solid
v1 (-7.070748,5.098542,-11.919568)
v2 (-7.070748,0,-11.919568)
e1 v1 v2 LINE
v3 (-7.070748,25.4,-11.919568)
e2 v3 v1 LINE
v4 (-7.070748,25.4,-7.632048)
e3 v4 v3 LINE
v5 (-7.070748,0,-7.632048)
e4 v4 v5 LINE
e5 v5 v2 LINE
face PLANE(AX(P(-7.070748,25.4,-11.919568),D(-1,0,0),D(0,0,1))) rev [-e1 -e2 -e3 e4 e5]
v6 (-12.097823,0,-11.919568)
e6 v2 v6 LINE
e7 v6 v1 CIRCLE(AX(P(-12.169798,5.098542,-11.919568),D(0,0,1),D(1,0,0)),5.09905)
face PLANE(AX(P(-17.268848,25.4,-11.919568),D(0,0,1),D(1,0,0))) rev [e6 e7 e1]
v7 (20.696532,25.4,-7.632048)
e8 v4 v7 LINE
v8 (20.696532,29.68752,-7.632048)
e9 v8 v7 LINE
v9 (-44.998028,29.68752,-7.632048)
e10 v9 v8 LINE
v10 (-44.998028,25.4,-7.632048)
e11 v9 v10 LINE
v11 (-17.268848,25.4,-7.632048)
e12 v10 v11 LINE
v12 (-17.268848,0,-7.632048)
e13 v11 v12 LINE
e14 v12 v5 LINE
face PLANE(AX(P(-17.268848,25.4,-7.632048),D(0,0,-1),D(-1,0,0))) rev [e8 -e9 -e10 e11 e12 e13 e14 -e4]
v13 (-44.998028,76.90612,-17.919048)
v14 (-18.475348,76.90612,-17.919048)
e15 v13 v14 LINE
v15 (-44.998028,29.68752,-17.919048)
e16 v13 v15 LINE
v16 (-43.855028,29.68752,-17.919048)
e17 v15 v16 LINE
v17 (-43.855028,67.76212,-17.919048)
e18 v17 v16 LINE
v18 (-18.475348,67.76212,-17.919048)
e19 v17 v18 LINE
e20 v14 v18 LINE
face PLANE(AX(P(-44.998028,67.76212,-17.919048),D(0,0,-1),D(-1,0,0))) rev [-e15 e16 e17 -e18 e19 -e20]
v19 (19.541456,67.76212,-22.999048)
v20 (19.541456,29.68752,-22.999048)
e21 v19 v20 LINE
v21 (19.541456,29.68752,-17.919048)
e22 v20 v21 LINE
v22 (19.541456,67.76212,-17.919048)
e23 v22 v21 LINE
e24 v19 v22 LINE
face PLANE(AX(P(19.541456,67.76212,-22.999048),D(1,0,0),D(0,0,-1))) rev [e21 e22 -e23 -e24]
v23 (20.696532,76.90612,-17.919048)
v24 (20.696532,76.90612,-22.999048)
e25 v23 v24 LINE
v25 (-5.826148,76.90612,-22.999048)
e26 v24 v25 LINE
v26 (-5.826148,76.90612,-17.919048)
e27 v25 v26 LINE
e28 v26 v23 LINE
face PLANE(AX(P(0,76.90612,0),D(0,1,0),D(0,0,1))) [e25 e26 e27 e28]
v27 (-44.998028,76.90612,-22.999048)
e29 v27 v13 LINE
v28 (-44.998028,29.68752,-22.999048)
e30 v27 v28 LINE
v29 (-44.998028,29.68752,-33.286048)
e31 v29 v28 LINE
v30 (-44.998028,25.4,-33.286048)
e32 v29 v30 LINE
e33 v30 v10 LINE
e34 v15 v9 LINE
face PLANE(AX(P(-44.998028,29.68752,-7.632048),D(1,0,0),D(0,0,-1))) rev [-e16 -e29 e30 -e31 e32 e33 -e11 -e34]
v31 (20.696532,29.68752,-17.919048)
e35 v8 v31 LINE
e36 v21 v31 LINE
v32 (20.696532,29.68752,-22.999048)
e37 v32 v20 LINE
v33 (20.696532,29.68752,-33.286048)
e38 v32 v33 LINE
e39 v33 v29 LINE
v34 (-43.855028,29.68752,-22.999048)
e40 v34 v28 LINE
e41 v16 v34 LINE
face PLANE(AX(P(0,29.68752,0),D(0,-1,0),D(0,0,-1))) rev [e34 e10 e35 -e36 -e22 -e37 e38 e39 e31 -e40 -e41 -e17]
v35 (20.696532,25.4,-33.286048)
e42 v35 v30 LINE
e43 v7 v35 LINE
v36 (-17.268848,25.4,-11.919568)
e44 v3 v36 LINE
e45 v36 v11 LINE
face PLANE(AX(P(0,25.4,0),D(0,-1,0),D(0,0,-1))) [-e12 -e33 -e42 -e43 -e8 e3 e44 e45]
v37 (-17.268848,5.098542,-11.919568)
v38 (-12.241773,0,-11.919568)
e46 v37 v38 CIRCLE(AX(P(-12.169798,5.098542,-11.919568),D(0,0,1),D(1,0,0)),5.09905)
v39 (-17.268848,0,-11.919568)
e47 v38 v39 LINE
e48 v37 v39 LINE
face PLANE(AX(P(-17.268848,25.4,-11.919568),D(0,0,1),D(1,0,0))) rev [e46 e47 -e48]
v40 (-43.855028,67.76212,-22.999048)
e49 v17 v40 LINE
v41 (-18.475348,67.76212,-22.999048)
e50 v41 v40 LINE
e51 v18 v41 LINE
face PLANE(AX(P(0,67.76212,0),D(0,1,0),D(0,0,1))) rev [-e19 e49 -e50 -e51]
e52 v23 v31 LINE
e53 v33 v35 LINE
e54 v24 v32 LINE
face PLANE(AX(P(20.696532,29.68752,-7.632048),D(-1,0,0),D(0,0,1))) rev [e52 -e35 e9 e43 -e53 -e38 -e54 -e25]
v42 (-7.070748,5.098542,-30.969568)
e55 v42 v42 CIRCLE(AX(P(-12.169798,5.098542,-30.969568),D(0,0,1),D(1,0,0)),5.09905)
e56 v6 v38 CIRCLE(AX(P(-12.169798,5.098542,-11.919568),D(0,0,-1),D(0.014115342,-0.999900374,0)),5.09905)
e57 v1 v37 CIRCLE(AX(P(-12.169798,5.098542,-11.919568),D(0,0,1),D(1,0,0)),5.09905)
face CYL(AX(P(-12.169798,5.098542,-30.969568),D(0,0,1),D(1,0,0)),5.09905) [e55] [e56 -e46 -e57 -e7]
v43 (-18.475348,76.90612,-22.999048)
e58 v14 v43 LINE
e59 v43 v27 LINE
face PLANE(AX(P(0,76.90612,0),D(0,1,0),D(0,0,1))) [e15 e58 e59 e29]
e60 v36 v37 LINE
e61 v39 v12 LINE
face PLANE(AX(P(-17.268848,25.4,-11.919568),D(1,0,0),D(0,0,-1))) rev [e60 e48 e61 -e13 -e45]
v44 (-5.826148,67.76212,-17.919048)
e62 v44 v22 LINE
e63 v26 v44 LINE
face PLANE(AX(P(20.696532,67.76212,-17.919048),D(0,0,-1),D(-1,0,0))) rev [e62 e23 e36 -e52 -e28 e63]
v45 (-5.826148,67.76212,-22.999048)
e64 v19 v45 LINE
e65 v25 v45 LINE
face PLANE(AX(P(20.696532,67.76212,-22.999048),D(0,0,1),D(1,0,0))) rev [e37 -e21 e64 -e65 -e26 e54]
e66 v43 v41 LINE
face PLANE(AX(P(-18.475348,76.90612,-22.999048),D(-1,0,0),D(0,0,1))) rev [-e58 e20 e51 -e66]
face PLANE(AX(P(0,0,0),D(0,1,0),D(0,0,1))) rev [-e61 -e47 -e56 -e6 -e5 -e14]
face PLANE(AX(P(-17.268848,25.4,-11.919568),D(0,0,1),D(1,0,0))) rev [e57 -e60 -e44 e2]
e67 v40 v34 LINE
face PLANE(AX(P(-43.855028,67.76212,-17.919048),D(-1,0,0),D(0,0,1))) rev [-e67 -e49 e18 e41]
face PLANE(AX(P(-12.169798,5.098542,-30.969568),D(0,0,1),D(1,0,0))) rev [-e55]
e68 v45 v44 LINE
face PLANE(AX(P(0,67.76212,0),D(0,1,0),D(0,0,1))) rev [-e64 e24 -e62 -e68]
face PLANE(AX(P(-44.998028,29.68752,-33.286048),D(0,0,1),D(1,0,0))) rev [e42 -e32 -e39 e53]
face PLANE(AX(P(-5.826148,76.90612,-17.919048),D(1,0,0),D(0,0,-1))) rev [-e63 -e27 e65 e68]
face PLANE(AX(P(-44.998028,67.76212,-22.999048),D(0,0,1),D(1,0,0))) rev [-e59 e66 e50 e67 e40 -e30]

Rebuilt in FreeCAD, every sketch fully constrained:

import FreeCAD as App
import Part
import Sketcher
from FreeCAD import Vector
Q = App.Units.Quantity

doc = App.newDocument("Part")
body = doc.addObject("PartDesign::Body", "Body")

sketch1 = body.newObject("Sketcher::SketchObject", "Sketch")
sketch1.AttachmentSupport = (doc.getObject("XZ_Plane"), [""])
sketch1.MapMode = "FlatFace"
sketch1.addGeometry(Part.LineSegment(Vector(-17.3, -11.9, 0), Vector(-17.3, -7.6, 0)), False)
sketch1.addGeometry(Part.LineSegment(Vector(-17.3, -7.6, 0), Vector(-7.1, -7.6, 0)), False)
sketch1.addGeometry(Part.LineSegment(Vector(-7.1, -7.6, 0), Vector(-7.1, -11.9, 0)), False)
sketch1.addGeometry(Part.LineSegment(Vector(-7.1, -11.9, 0), Vector(-17.3, -11.9, 0)), False)
sketch1.addConstraint(Sketcher.Constraint("Coincident", 0, 2, 1, 1))
sketch1.addConstraint(Sketcher.Constraint("Coincident", 1, 2, 2, 1))
sketch1.addConstraint(Sketcher.Constraint("Coincident", 2, 2, 3, 1))
sketch1.addConstraint(Sketcher.Constraint("Coincident", 3, 2, 0, 1))
sketch1.addConstraint(Sketcher.Constraint("Vertical", 0))
sketch1.addConstraint(Sketcher.Constraint("Horizontal", 1))
sketch1.addConstraint(Sketcher.Constraint("Vertical", 2))
sketch1.addConstraint(Sketcher.Constraint("Horizontal", 3))
sketch1.addConstraint(Sketcher.Constraint("DistanceX", 1, 1, 1, 2, Q("0.4015 in")))
sketch1.addConstraint(Sketcher.Constraint("DistanceY", 0, 1, 0, 2, Q("0.1688 in")))
sketch1.addConstraint(Sketcher.Constraint("DistanceY", 0, 2, -1, 1, 7.632048))
sketch1.addConstraint(Sketcher.Constraint("DistanceX", 0, 2, -1, 1, 17.268848))
pad1 = body.newObject("PartDesign::Pad", "Pad")
pad1.Profile = sketch1
pad1.Length = Q("1 in")
pad1.Reversed = True

sketch2 = body.newObject("Sketcher::SketchObject", "Sketch001")
sketch2.AttachmentSupport = (doc.getObject("XY_Plane"), [""])
sketch2.MapMode = "FlatFace"
sketch2.AttachmentOffset = App.Placement(Vector(0, 0, -11.919568), App.Rotation())
sketch2.addGeometry(Part.Circle(Vector(-12, 5, 0), Vector(0, 0, 1), 5), False)
sketch2.addConstraint(Sketcher.Constraint("Diameter", 0, Q("0.4015 in")))
sketch2.addConstraint(Sketcher.Constraint("DistanceX", 0, 3, -1, 1, 12.169798))
sketch2.addConstraint(Sketcher.Constraint("DistanceY", -1, 1, 0, 3, 5.098542))
pad2 = body.newObject("PartDesign::Pad", "Pad001")
pad2.Profile = sketch2
pad2.Length = Q("0.75 in")
pad2.Reversed = True

sketch3 = body.newObject("Sketcher::SketchObject", "Sketch002")
sketch3.AttachmentSupport = (doc.getObject("XZ_Plane"), [""])
sketch3.MapMode = "FlatFace"
sketch3.AttachmentOffset = App.Placement(Vector(0, 0, -1 * 25.4), App.Rotation())
sketch3.addGeometry(Part.LineSegment(Vector(-45, -33, 0), Vector(-45, -8, 0)), False)
sketch3.addGeometry(Part.LineSegment(Vector(-45, -8, 0), Vector(21, -8, 0)), False)
sketch3.addGeometry(Part.LineSegment(Vector(21, -8, 0), Vector(21, -33, 0)), False)
sketch3.addGeometry(Part.LineSegment(Vector(21, -33, 0), Vector(-45, -33, 0)), False)
sketch3.addConstraint(Sketcher.Constraint("Coincident", 0, 2, 1, 1))
sketch3.addConstraint(Sketcher.Constraint("Coincident", 1, 2, 2, 1))
sketch3.addConstraint(Sketcher.Constraint("Coincident", 2, 2, 3, 1))
sketch3.addConstraint(Sketcher.Constraint("Coincident", 3, 2, 0, 1))
sketch3.addConstraint(Sketcher.Constraint("Vertical", 0))
sketch3.addConstraint(Sketcher.Constraint("Horizontal", 1))
sketch3.addConstraint(Sketcher.Constraint("Vertical", 2))
sketch3.addConstraint(Sketcher.Constraint("Horizontal", 3))
sketch3.addConstraint(Sketcher.Constraint("DistanceY", 0, 1, 0, 2, Q("1.01 in")))
sketch3.addConstraint(Sketcher.Constraint("DistanceX", 1, 1, 1, 2, Q("2.5864 in")))
sketch3.addConstraint(Sketcher.Constraint("DistanceY", 0, 2, -1, 1, 7.632048))
sketch3.addConstraint(Sketcher.Constraint("DistanceX", 0, 2, -1, 1, 44.998028))
pad3 = body.newObject("PartDesign::Pad", "Pad002")
pad3.Profile = sketch3
pad3.Length = Q("0.1688 in")
pad3.Reversed = True

sketch4 = body.newObject("Sketcher::SketchObject", "Sketch003")
sketch4.AttachmentSupport = (doc.getObject("XZ_Plane"), [""])
sketch4.MapMode = "FlatFace"
sketch4.AttachmentOffset = App.Placement(Vector(0, 0, -1.1688 * 25.4), App.Rotation())
sketch4.addGeometry(Part.LineSegment(Vector(-45, -23, 0), Vector(-45, -17.9, 0)), False)
sketch4.addGeometry(Part.LineSegment(Vector(-45, -17.9, 0), Vector(-43.9, -17.9, 0)), False)
sketch4.addGeometry(Part.LineSegment(Vector(-43.9, -17.9, 0), Vector(-43.9, -23, 0)), False)
sketch4.addGeometry(Part.LineSegment(Vector(-43.9, -23, 0), Vector(-45, -23, 0)), False)
sketch4.addGeometry(Part.LineSegment(Vector(19.5, -23, 0), Vector(19.5, -17.9, 0)), False)
sketch4.addGeometry(Part.LineSegment(Vector(19.5, -17.9, 0), Vector(20.7, -17.9, 0)), False)
sketch4.addGeometry(Part.LineSegment(Vector(20.7, -17.9, 0), Vector(20.7, -23, 0)), False)
sketch4.addGeometry(Part.LineSegment(Vector(20.7, -23, 0), Vector(19.5, -23, 0)), False)
sketch4.addConstraint(Sketcher.Constraint("Coincident", 0, 2, 1, 1))
sketch4.addConstraint(Sketcher.Constraint("Coincident", 1, 2, 2, 1))
sketch4.addConstraint(Sketcher.Constraint("Coincident", 2, 2, 3, 1))
sketch4.addConstraint(Sketcher.Constraint("Coincident", 3, 2, 0, 1))
sketch4.addConstraint(Sketcher.Constraint("Coincident", 4, 2, 5, 1))
sketch4.addConstraint(Sketcher.Constraint("Coincident", 5, 2, 6, 1))
sketch4.addConstraint(Sketcher.Constraint("Coincident", 6, 2, 7, 1))
sketch4.addConstraint(Sketcher.Constraint("Coincident", 7, 2, 4, 1))
sketch4.addConstraint(Sketcher.Constraint("Vertical", 0))
sketch4.addConstraint(Sketcher.Constraint("Horizontal", 1))
sketch4.addConstraint(Sketcher.Constraint("Vertical", 2))
sketch4.addConstraint(Sketcher.Constraint("Horizontal", 3))
sketch4.addConstraint(Sketcher.Constraint("Vertical", 4))
sketch4.addConstraint(Sketcher.Constraint("Horizontal", 5))
sketch4.addConstraint(Sketcher.Constraint("Vertical", 6))
sketch4.addConstraint(Sketcher.Constraint("Horizontal", 7))
sketch4.addConstraint(Sketcher.Constraint("Horizontal", 1, 2, 4, 2))
sketch4.addConstraint(Sketcher.Constraint("Horizontal", 3, 2, 6, 2))
sketch4.addConstraint(Sketcher.Constraint("DistanceY", 0, 1, 0, 2, Q("0.2 in")))
sketch4.addConstraint(Sketcher.Constraint("DistanceX", 1, 1, 1, 2, Q("0.045 in")))
sketch4.addConstraint(Sketcher.Constraint("DistanceX", 1, 2, 5, 2, Q("2.5414 in")))
sketch4.addConstraint(Sketcher.Constraint("DistanceX", 5, 1, 5, 2, 1.155076))
sketch4.addConstraint(Sketcher.Constraint("DistanceY", 0, 2, -1, 1, 17.919048))
sketch4.addConstraint(Sketcher.Constraint("DistanceX", 0, 2, -1, 1, 44.998028))
pad4 = body.newObject("PartDesign::Pad", "Pad003")
pad4.Profile = sketch4
pad4.Length = Q("1.499 in")
pad4.Reversed = True

sketch5 = body.newObject("Sketcher::SketchObject", "Sketch004")
sketch5.AttachmentSupport = (doc.getObject("XZ_Plane"), [""])
sketch5.MapMode = "FlatFace"
sketch5.AttachmentOffset = App.Placement(Vector(0, 0, -2.6678 * 25.4), App.Rotation())
sketch5.addGeometry(Part.LineSegment(Vector(-45, -23, 0), Vector(-45, -18, 0)), False)
sketch5.addGeometry(Part.LineSegment(Vector(-45, -18, 0), Vector(-18, -18, 0)), False)
sketch5.addGeometry(Part.LineSegment(Vector(-18, -18, 0), Vector(-18, -23, 0)), False)
sketch5.addGeometry(Part.LineSegment(Vector(-18, -23, 0), Vector(-45, -23, 0)), False)
sketch5.addGeometry(Part.LineSegment(Vector(-6, -23, 0), Vector(-6, -18, 0)), False)
sketch5.addGeometry(Part.LineSegment(Vector(-6, -18, 0), Vector(21, -18, 0)), False)
sketch5.addGeometry(Part.LineSegment(Vector(21, -18, 0), Vector(21, -23, 0)), False)
sketch5.addGeometry(Part.LineSegment(Vector(21, -23, 0), Vector(-6, -23, 0)), False)
sketch5.addConstraint(Sketcher.Constraint("Coincident", 0, 2, 1, 1))
sketch5.addConstraint(Sketcher.Constraint("Coincident", 1, 2, 2, 1))
sketch5.addConstraint(Sketcher.Constraint("Coincident", 2, 2, 3, 1))
sketch5.addConstraint(Sketcher.Constraint("Coincident", 3, 2, 0, 1))
sketch5.addConstraint(Sketcher.Constraint("Coincident", 4, 2, 5, 1))
sketch5.addConstraint(Sketcher.Constraint("Coincident", 5, 2, 6, 1))
sketch5.addConstraint(Sketcher.Constraint("Coincident", 6, 2, 7, 1))
sketch5.addConstraint(Sketcher.Constraint("Coincident", 7, 2, 4, 1))
sketch5.addConstraint(Sketcher.Constraint("Vertical", 0))
sketch5.addConstraint(Sketcher.Constraint("Horizontal", 1))
sketch5.addConstraint(Sketcher.Constraint("Vertical", 2))
sketch5.addConstraint(Sketcher.Constraint("Horizontal", 3))
sketch5.addConstraint(Sketcher.Constraint("Vertical", 4))
sketch5.addConstraint(Sketcher.Constraint("Horizontal", 5))
sketch5.addConstraint(Sketcher.Constraint("Vertical", 6))
sketch5.addConstraint(Sketcher.Constraint("Horizontal", 7))
sketch5.addConstraint(Sketcher.Constraint("Horizontal", 1, 2, 4, 2))
sketch5.addConstraint(Sketcher.Constraint("Horizontal", 3, 2, 6, 2))
sketch5.addConstraint(Sketcher.Constraint("Equal", 3, 5))
sketch5.addConstraint(Sketcher.Constraint("DistanceY", 0, 1, 0, 2, Q("0.2 in")))
sketch5.addConstraint(Sketcher.Constraint("DistanceX", 1, 1, 1, 2, Q("1.0442 in")))
sketch5.addConstraint(Sketcher.Constraint("DistanceX", 1, 2, 4, 2, Q("0.498 in")))
sketch5.addConstraint(Sketcher.Constraint("DistanceY", 0, 2, -1, 1, 17.919048))
sketch5.addConstraint(Sketcher.Constraint("DistanceX", 0, 2, -1, 1, 44.998028))
pad5 = body.newObject("PartDesign::Pad", "Pad004")
pad5.Profile = sketch5
pad5.Length = Q("0.36 in")
pad5.Reversed = True

doc.recompute()
